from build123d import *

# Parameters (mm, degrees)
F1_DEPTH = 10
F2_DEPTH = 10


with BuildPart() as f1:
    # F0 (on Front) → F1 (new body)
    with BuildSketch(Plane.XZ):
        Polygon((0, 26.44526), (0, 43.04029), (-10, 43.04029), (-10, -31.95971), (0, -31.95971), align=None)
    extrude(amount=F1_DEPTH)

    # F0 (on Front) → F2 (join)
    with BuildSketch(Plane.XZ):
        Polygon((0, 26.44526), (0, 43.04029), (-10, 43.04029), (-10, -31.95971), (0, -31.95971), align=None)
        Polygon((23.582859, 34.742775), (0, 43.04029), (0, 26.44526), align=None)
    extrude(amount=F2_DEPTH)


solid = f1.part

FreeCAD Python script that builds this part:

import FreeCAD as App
import Part
import Sketcher

V = App.Vector
Q = App.Units.Quantity


def add_polygon(sketch, points):
    """Adds a closed chain of lines whose ends are joined by coincident constraints."""
    first, n = sketch.GeometryCount, len(points)
    for a, b in zip(points, points[1:] + points[:1]):
        sketch.addGeometry(Part.LineSegment(App.Vector(*a, 0), App.Vector(*b, 0)), False)
    for i in range(n):
        sketch.addConstraint(Sketcher.Constraint("Coincident", first + i, 2, first + (i + 1) % n, 1))

doc = App.newDocument("Part")
body = doc.addObject("PartDesign::Body", "Body")

# Sketch on XZ plane
sketch1 = body.newObject("Sketcher::SketchObject", "Sketch")
sketch1.AttachmentSupport = (doc.getObject("XZ_Plane"), [""])
sketch1.MapMode = "FlatFace"
add_polygon(sketch1, [(0, 43), (-10, 43), (-10, -32), (0, -32)])  # lines 0-3
sketch1.addConstraint(Sketcher.Constraint("Horizontal", 0))
sketch1.addConstraint(Sketcher.Constraint("Vertical", 1))
sketch1.addConstraint(Sketcher.Constraint("Horizontal", 2))
sketch1.addConstraint(Sketcher.Constraint("Vertical", 3))
sketch1.addConstraint(Sketcher.Constraint("PointOnObject", 2, 2, -2))
sketch1.addConstraint(Sketcher.Constraint("DistanceX", 0, 2, 0, 1, Q("10 mm")))
sketch1.addConstraint(Sketcher.Constraint("DistanceY", 1, 2, 1, 1, Q("75 mm")))
sketch1.addConstraint(Sketcher.Constraint("DistanceY", -1, 1, 0, 2, Q("43.04029 mm")))
pad1 = body.newObject("PartDesign::Pad", "Pad")
pad1.Profile = sketch1
pad1.Length = 10

# Sketch on XZ plane
sketch2 = body.newObject("Sketcher::SketchObject", "Sketch001")
sketch2.AttachmentSupport = (doc.getObject("XZ_Plane"), [""])
sketch2.MapMode = "FlatFace"
add_polygon(sketch2, [(0, 43), (-10, 43), (-10, -32), (0, -32), (0, 26), (24, 35)])  # lines 0-5
sketch2.addConstraint(Sketcher.Constraint("Horizontal", 0))
sketch2.addConstraint(Sketcher.Constraint("Vertical", 1))
sketch2.addConstraint(Sketcher.Constraint("Horizontal", 2))
sketch2.addConstraint(Sketcher.Constraint("Vertical", 3))
sketch2.addConstraint(Sketcher.Constraint("PointOnObject", 2, 2, -2))
sketch2.addConstraint(Sketcher.Constraint("PointOnObject", 5, 2, -2))
sketch2.addConstraint(Sketcher.Constraint("Equal", 4, 5))
sketch2.addConstraint(Sketcher.Constraint("DistanceX", 0, 2, 0, 1, Q("10 mm")))
sketch2.addConstraint(Sketcher.Constraint("DistanceY", 1, 2, 1, 1, Q("75 mm")))
sketch2.addConstraint(Sketcher.Constraint("Distance", 4, Q("25 mm")))
sketch2.addConstraint(Sketcher.Constraint("DistanceY", 3, 1, 3, 2, Q("58.40497 mm")))
sketch2.addConstraint(Sketcher.Constraint("DistanceY", -1, 1, 0, 2, Q("43.04029 mm")))
pad2 = body.newObject("PartDesign::Pad", "Pad001")
pad2.Profile = sketch2
pad2.Length = 10

doc.recompute()
